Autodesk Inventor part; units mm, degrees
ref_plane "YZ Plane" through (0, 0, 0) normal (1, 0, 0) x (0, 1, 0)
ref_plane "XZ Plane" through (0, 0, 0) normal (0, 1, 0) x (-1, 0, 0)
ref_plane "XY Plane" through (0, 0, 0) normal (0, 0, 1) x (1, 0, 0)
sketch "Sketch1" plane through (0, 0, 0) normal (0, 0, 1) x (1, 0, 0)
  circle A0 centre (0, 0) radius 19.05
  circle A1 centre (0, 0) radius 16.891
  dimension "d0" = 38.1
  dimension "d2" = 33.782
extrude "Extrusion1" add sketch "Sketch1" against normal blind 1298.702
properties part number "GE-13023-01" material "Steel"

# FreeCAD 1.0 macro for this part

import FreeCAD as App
import Part
import Sketcher

V = App.Vector
Q = App.Units.Quantity

doc = App.newDocument("Part")
body = doc.addObject("PartDesign::Body", "Body")

# Sketch on XY plane
sketch1 = body.newObject("Sketcher::SketchObject", "Sketch")
sketch1.AttachmentSupport = (doc.getObject("XY_Plane"), [""])
sketch1.MapMode = "FlatFace"
sketch1.addGeometry([
    Part.Circle(V(0, 0, 0), V(0, 0, 1), 19),
    Part.Circle(V(0, 0, 0), V(0, 0, 1), 17),
], False)
sketch1.addConstraint([
    Sketcher.Constraint("Coincident", 0, 3, -1, 1),
    Sketcher.Constraint("Coincident", 1, 3, -1, 1),
    Sketcher.Constraint("Diameter", 0, Q("1.5 in")),
    Sketcher.Constraint("Diameter", 1, Q("1.33 in")),
])
pad1 = body.newObject("PartDesign::Pad", "Pad")
pad1.Profile = sketch1
pad1.Length = Q("51.13 in")
pad1.Reversed = True

doc.recompute()
